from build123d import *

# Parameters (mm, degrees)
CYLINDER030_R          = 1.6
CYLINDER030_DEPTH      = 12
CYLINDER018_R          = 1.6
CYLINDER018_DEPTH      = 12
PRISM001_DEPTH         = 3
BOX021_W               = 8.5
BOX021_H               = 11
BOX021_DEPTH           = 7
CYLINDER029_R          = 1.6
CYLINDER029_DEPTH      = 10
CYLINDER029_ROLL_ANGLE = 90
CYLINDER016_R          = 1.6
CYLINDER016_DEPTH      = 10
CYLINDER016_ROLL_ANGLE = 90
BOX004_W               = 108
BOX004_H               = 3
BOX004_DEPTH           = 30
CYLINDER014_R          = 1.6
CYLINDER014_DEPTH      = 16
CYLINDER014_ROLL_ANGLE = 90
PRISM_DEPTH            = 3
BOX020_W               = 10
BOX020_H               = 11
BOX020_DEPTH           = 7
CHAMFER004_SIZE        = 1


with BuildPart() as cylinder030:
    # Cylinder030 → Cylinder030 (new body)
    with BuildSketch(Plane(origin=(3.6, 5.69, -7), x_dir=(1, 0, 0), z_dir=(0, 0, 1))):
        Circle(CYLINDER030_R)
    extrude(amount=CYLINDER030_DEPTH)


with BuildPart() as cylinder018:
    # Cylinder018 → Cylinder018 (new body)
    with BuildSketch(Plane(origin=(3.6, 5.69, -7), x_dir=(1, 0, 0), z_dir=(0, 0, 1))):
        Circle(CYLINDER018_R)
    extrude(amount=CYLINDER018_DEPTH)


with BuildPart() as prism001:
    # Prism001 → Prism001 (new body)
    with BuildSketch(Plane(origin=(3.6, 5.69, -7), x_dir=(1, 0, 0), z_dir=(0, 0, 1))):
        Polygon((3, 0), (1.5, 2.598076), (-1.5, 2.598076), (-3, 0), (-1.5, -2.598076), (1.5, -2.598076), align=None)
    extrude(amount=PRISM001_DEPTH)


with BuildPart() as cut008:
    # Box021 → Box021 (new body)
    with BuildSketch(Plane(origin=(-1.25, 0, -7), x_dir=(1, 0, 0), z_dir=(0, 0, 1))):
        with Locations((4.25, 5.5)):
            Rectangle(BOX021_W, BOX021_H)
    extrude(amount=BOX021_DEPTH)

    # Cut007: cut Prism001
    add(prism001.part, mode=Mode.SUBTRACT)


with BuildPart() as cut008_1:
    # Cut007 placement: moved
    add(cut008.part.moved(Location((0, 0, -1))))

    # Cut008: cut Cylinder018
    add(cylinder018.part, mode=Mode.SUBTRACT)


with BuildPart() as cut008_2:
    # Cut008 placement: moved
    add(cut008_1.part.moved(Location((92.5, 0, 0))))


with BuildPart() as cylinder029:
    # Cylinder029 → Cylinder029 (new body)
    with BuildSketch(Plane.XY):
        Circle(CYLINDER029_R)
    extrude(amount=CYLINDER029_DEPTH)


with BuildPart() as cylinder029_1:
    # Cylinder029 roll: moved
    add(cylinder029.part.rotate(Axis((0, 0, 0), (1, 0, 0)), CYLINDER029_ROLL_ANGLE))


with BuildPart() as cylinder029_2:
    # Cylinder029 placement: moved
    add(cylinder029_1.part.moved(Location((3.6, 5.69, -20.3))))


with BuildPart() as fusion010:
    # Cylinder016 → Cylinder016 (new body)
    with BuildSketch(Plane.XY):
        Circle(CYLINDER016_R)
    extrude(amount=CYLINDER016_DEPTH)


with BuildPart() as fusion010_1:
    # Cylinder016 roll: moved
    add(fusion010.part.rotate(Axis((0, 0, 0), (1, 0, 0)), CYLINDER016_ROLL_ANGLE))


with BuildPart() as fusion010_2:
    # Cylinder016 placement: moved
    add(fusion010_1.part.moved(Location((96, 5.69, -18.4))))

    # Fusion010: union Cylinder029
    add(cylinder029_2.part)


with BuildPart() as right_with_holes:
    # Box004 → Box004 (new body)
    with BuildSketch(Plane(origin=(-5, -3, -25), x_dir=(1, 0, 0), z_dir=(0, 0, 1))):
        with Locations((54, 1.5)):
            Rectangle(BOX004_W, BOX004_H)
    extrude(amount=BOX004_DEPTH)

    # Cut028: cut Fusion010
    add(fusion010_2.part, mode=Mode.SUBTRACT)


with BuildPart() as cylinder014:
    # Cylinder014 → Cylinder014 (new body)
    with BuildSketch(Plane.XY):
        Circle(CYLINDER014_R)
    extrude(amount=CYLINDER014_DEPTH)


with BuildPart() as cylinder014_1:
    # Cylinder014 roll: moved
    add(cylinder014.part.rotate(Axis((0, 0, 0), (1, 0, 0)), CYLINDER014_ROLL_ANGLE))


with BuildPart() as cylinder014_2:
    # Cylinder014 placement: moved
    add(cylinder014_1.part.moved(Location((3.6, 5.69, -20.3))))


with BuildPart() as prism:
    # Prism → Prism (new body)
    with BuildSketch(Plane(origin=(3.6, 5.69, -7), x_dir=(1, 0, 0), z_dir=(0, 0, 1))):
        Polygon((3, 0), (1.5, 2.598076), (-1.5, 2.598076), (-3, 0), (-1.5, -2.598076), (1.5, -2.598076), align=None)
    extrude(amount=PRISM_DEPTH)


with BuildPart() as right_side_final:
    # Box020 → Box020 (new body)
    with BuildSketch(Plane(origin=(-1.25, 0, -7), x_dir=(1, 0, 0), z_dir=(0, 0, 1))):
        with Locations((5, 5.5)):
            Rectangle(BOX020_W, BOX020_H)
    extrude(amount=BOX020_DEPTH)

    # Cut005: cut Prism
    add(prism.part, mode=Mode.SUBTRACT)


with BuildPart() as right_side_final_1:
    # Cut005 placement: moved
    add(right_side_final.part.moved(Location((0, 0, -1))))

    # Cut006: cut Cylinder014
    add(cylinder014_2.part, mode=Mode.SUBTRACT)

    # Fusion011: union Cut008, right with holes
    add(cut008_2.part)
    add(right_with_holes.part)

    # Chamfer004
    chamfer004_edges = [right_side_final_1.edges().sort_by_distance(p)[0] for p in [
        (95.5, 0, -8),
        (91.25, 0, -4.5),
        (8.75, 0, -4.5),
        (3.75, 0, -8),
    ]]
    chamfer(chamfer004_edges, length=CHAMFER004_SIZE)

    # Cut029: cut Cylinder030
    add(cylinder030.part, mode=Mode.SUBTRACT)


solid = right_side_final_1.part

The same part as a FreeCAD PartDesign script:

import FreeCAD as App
import Part
import Sketcher
from FreeCAD import Vector
Q = App.Units.Quantity


def edges_at(feature, points):
    """Names of the edges that pass closest to the given points."""
    edges = feature.Shape.Edges
    near = lambda p: min(range(len(edges)), key=lambda i: edges[i].distToShape(Part.Vertex(*p))[0])
    return sorted({f"Edge{near(p) + 1}" for p in points})

doc = App.newDocument("Part")
body = doc.addObject("PartDesign::Body", "Body")

sketch1 = body.newObject("Sketcher::SketchObject", "Sketch")
sketch1.AttachmentSupport = (doc.getObject("XY_Plane"), [""])
sketch1.MapMode = "FlatFace"
sketch1.AttachmentOffset = App.Placement(Vector(0, 0, -7), App.Rotation())
sketch1.addGeometry(Part.Circle(Vector(3.6, 5.7, 0), Vector(0, 0, 1), 1.6), False)
sketch1.addConstraint([
    Sketcher.Constraint("Diameter", 0, 3.2),
    Sketcher.Constraint("DistanceX", -1, 1, 0, 3, 3.6),
    Sketcher.Constraint("DistanceY", -1, 1, 0, 3, 5.69),
])
pad1 = body.newObject("PartDesign::Pad", "Pad")
pad1.Profile = sketch1
pad1.Length = 12
body2 = doc.addObject("PartDesign::Body", "Body001")

sketch2 = body2.newObject("Sketcher::SketchObject", "Sketch001")
sketch2.AttachmentSupport = (doc.getObject("XY_Plane001"), [""])
sketch2.MapMode = "FlatFace"
sketch2.AttachmentOffset = App.Placement(Vector(0, 0, -7), App.Rotation())
sketch2.addGeometry(Part.Circle(Vector(3.6, 5.7, 0), Vector(0, 0, 1), 1.6), False)
sketch2.addConstraint([
    Sketcher.Constraint("Diameter", 0, 3.2),
    Sketcher.Constraint("DistanceX", -1, 1, 0, 3, 3.6),
    Sketcher.Constraint("DistanceY", -1, 1, 0, 3, 5.69),
])
pad2 = body2.newObject("PartDesign::Pad", "Pad001")
pad2.Profile = sketch2
pad2.Length = 12
body3 = doc.addObject("PartDesign::Body", "Body002")

sketch3 = body3.newObject("Sketcher::SketchObject", "Sketch002")
sketch3.AttachmentSupport = (doc.getObject("XY_Plane002"), [""])
sketch3.MapMode = "FlatFace"
sketch3.AttachmentOffset = App.Placement(Vector(0, 0, -7), App.Rotation())
sketch3.addGeometry([
    Part.LineSegment(Vector(6.6, 5.7, 0), Vector(5.1, 8.3, 0)),
    Part.LineSegment(Vector(5.1, 8.3, 0), Vector(2.1, 8.3, 0)),
    Part.LineSegment(Vector(2.1, 8.3, 0), Vector(0.6, 5.7, 0)),
    Part.LineSegment(Vector(0.6, 5.7, 0), Vector(2.1, 3.1, 0)),
    Part.LineSegment(Vector(2.1, 3.1, 0), Vector(5.1, 3.1, 0)),
    Part.LineSegment(Vector(5.1, 3.1, 0), Vector(6.6, 5.7, 0)),
], False)
sketch3.addConstraint([
    Sketcher.Constraint("Coincident", 0, 2, 1, 1),
    Sketcher.Constraint("Coincident", 1, 2, 2, 1),
    Sketcher.Constraint("Coincident", 2, 2, 3, 1),
    Sketcher.Constraint("Coincident", 3, 2, 4, 1),
    Sketcher.Constraint("Coincident", 4, 2, 5, 1),
    Sketcher.Constraint("Coincident", 5, 2, 0, 1),
    Sketcher.Constraint("Horizontal", 1),
    Sketcher.Constraint("Horizontal", 4),
    Sketcher.Constraint("Parallel", 0, 3),
    Sketcher.Constraint("Parallel", 2, 5),
    Sketcher.Constraint("Horizontal", 2, 2, 5, 2),
    Sketcher.Constraint("Vertical", 1, 2, 3, 2),
    Sketcher.Constraint("Vertical", 0, 2, 4, 2),
    Sketcher.Constraint("DistanceX", 1, 2, 1, 1, 3.0),
    Sketcher.Constraint("Angle", 0, Q("120.000002 deg")),
    Sketcher.Constraint("Distance", 0, 3.0),
    Sketcher.Constraint("DistanceX", -1, 1, 0, 2, 5.1),
    Sketcher.Constraint("DistanceY", -1, 1, 2, 2, 5.69),
])
pad3 = body3.newObject("PartDesign::Pad", "Pad002")
pad3.Profile = sketch3
pad3.Length = 3
body4 = doc.addObject("PartDesign::Body", "Body003")

sketch4 = body4.newObject("Sketcher::SketchObject", "Sketch003")
sketch4.AttachmentSupport = (doc.getObject("XY_Plane003"), [""])
sketch4.MapMode = "FlatFace"
sketch4.AttachmentOffset = App.Placement(Vector(0, 0, -7), App.Rotation())
sketch4.addGeometry([
    Part.LineSegment(Vector(-1, 11, 0), Vector(-1, 0, 0)),
    Part.LineSegment(Vector(-1, 0, 0), Vector(7, 0, 0)),
    Part.LineSegment(Vector(7, 0, 0), Vector(7, 11, 0)),
    Part.LineSegment(Vector(7, 11, 0), Vector(-1, 11, 0)),
], False)
sketch4.addConstraint([
    Sketcher.Constraint("Coincident", 0, 2, 1, 1),
    Sketcher.Constraint("Coincident", 1, 2, 2, 1),
    Sketcher.Constraint("Coincident", 2, 2, 3, 1),
    Sketcher.Constraint("Coincident", 3, 2, 0, 1),
    Sketcher.Constraint("Vertical", 0),
    Sketcher.Constraint("Horizontal", 1),
    Sketcher.Constraint("Vertical", 2),
    Sketcher.Constraint("Horizontal", 3),
    Sketcher.Constraint("PointOnObject", 0, 2, -1),
    Sketcher.Constraint("DistanceY", 0, 2, 0, 1, 11.0),
    Sketcher.Constraint("DistanceX", 1, 1, 1, 2, 8.5),
    Sketcher.Constraint("DistanceX", 0, 2, -1, 1, 1.25),
])
pad4 = body4.newObject("PartDesign::Pad", "Pad003")
pad4.Profile = sketch4
pad4.Length = 7
doc.recompute()

boolean = body4.newObject("PartDesign::Boolean", "Boolean")
boolean.Type = "Cut"
boolean.addObjects([body3])
body5 = doc.addObject("PartDesign::Body", "Body004")
doc.recompute()

body4.Placement = App.Placement(Vector(0, 0, -1), App.Rotation(Vector(0, 0, 1), 0))
boolean2 = body5.newObject("PartDesign::Boolean", "Boolean001")
boolean2.Type = "Fuse"
boolean2.addObjects([body4])
doc.recompute()

boolean3 = body5.newObject("PartDesign::Boolean", "Boolean002")
boolean3.Type = "Cut"
boolean3.addObjects([body2])
body6 = doc.addObject("PartDesign::Body", "Body005")
doc.recompute()

body5.Placement = App.Placement(Vector(92.5, 0, 0), App.Rotation(Vector(0, 0, 1), 0))
boolean4 = body6.newObject("PartDesign::Boolean", "Boolean003")
boolean4.Type = "Fuse"
boolean4.addObjects([body5])
body7 = doc.addObject("PartDesign::Body", "Body006")

sketch5 = body7.newObject("Sketcher::SketchObject", "Sketch004")
sketch5.AttachmentSupport = (doc.getObject("XY_Plane006"), [""])
sketch5.MapMode = "FlatFace"
sketch5.addGeometry(Part.Circle(Vector(0, 0, 0), Vector(0, 0, 1), 1.6), False)
sketch5.addConstraint([
    Sketcher.Constraint("Coincident", 0, 3, -1, 1),
    Sketcher.Constraint("Diameter", 0, 3.2),
])
pad5 = body7.newObject("PartDesign::Pad", "Pad004")
pad5.Profile = sketch5
pad5.Length = 10
body8 = doc.addObject("PartDesign::Body", "Body007")
doc.recompute()

body7.Placement = App.Placement(Vector(0, 0, 0), App.Rotation(Vector(1, 0, 0), 90))
boolean5 = body8.newObject("PartDesign::Boolean", "Boolean004")
boolean5.Type = "Fuse"
boolean5.addObjects([body7])
body9 = doc.addObject("PartDesign::Body", "Body008")
doc.recompute()

body8.Placement = App.Placement(Vector(3.6, 5.69, -20.3), App.Rotation(Vector(0, 0, 1), 0))
boolean6 = body9.newObject("PartDesign::Boolean", "Boolean005")
boolean6.Type = "Fuse"
boolean6.addObjects([body8])
body10 = doc.addObject("PartDesign::Body", "Body009")

sketch6 = body10.newObject("Sketcher::SketchObject", "Sketch005")
sketch6.AttachmentSupport = (doc.getObject("XY_Plane009"), [""])
sketch6.MapMode = "FlatFace"
sketch6.addGeometry(Part.Circle(Vector(0, 0, 0), Vector(0, 0, 1), 1.6), False)
sketch6.addConstraint([
    Sketcher.Constraint("Coincident", 0, 3, -1, 1),
    Sketcher.Constraint("Diameter", 0, 3.2),
])
pad6 = body10.newObject("PartDesign::Pad", "Pad005")
pad6.Profile = sketch6
pad6.Length = 10
body11 = doc.addObject("PartDesign::Body", "Body010")
doc.recompute()

body10.Placement = App.Placement(Vector(0, 0, 0), App.Rotation(Vector(1, 0, 0), 90))
boolean7 = body11.newObject("PartDesign::Boolean", "Boolean006")
boolean7.Type = "Fuse"
boolean7.addObjects([body10])
body12 = doc.addObject("PartDesign::Body", "Body011")
body12.AllowCompound = True
doc.recompute()

body11.Placement = App.Placement(Vector(96, 5.69, -18.4), App.Rotation(Vector(0, 0, 1), 0))
boolean8 = body12.newObject("PartDesign::Boolean", "Boolean007")
boolean8.Type = "Fuse"
boolean8.addObjects([body11])
doc.recompute()

boolean9 = body12.newObject("PartDesign::Boolean", "Boolean008")
boolean9.Type = "Fuse"
boolean9.addObjects([body9])
body13 = doc.addObject("PartDesign::Body", "Body012")

sketch7 = body13.newObject("Sketcher::SketchObject", "Sketch006")
sketch7.AttachmentSupport = (doc.getObject("XY_Plane012"), [""])
sketch7.MapMode = "FlatFace"
sketch7.AttachmentOffset = App.Placement(Vector(0, 0, -25), App.Rotation())
sketch7.addGeometry([
    Part.LineSegment(Vector(-5, 0, 0), Vector(-5, -3, 0)),
    Part.LineSegment(Vector(-5, -3, 0), Vector(103, -3, 0)),
    Part.LineSegment(Vector(103, -3, 0), Vector(103, 0, 0)),
    Part.LineSegment(Vector(103, 0, 0), Vector(-5, 0, 0)),
], False)
sketch7.addConstraint([
    Sketcher.Constraint("Coincident", 0, 2, 1, 1),
    Sketcher.Constraint("Coincident", 1, 2, 2, 1),
    Sketcher.Constraint("Coincident", 2, 2, 3, 1),
    Sketcher.Constraint("Coincident", 3, 2, 0, 1),
    Sketcher.Constraint("Vertical", 0),
    Sketcher.Constraint("Horizontal", 1),
    Sketcher.Constraint("Vertical", 2),
    Sketcher.Constraint("Horizontal", 3),
    Sketcher.Constraint("PointOnObject", 2, 2, -1),
    Sketcher.Constraint("DistanceX", 1, 1, 1, 2, 108.0),
    Sketcher.Constraint("DistanceY", 0, 2, 0, 1, 3.0),
    Sketcher.Constraint("DistanceX", 0, 2, -1, 1, 5.0),
])
pad7 = body13.newObject("PartDesign::Pad", "Pad006")
pad7.Profile = sketch7
pad7.Length = 30
doc.recompute()

boolean10 = body13.newObject("PartDesign::Boolean", "Boolean009")
boolean10.Type = "Cut"
boolean10.addObjects([body12])
body14 = doc.addObject("PartDesign::Body", "Body013")

sketch8 = body14.newObject("Sketcher::SketchObject", "Sketch007")
sketch8.AttachmentSupport = (doc.getObject("XY_Plane013"), [""])
sketch8.MapMode = "FlatFace"
sketch8.addGeometry(Part.Circle(Vector(0, 0, 0), Vector(0, 0, 1), 1.6), False)
sketch8.addConstraint([
    Sketcher.Constraint("Coincident", 0, 3, -1, 1),
    Sketcher.Constraint("Diameter", 0, 3.2),
])
pad8 = body14.newObject("PartDesign::Pad", "Pad007")
pad8.Profile = sketch8
pad8.Length = 16
body15 = doc.addObject("PartDesign::Body", "Body014")
doc.recompute()

body14.Placement = App.Placement(Vector(0, 0, 0), App.Rotation(Vector(1, 0, 0), 90))
boolean11 = body15.newObject("PartDesign::Boolean", "Boolean010")
boolean11.Type = "Fuse"
boolean11.addObjects([body14])
body16 = doc.addObject("PartDesign::Body", "Body015")
doc.recompute()

body15.Placement = App.Placement(Vector(3.6, 5.69, -20.3), App.Rotation(Vector(0, 0, 1), 0))
boolean12 = body16.newObject("PartDesign::Boolean", "Boolean011")
boolean12.Type = "Fuse"
boolean12.addObjects([body15])
body17 = doc.addObject("PartDesign::Body", "Body016")

sketch9 = body17.newObject("Sketcher::SketchObject", "Sketch008")
sketch9.AttachmentSupport = (doc.getObject("XY_Plane016"), [""])
sketch9.MapMode = "FlatFace"
sketch9.AttachmentOffset = App.Placement(Vector(0, 0, -7), App.Rotation())
sketch9.addGeometry([
    Part.LineSegment(Vector(6.6, 5.7, 0), Vector(5.1, 8.3, 0)),
    Part.LineSegment(Vector(5.1, 8.3, 0), Vector(2.1, 8.3, 0)),
    Part.LineSegment(Vector(2.1, 8.3, 0), Vector(0.6, 5.7, 0)),
    Part.LineSegment(Vector(0.6, 5.7, 0), Vector(2.1, 3.1, 0)),
    Part.LineSegment(Vector(2.1, 3.1, 0), Vector(5.1, 3.1, 0)),
    Part.LineSegment(Vector(5.1, 3.1, 0), Vector(6.6, 5.7, 0)),
], False)
sketch9.addConstraint([
    Sketcher.Constraint("Coincident", 0, 2, 1, 1),
    Sketcher.Constraint("Coincident", 1, 2, 2, 1),
    Sketcher.Constraint("Coincident", 2, 2, 3, 1),
    Sketcher.Constraint("Coincident", 3, 2, 4, 1),
    Sketcher.Constraint("Coincident", 4, 2, 5, 1),
    Sketcher.Constraint("Coincident", 5, 2, 0, 1),
    Sketcher.Constraint("Horizontal", 1),
    Sketcher.Constraint("Horizontal", 4),
    Sketcher.Constraint("Parallel", 0, 3),
    Sketcher.Constraint("Parallel", 2, 5),
    Sketcher.Constraint("Horizontal", 2, 2, 5, 2),
    Sketcher.Constraint("Vertical", 1, 2, 3, 2),
    Sketcher.Constraint("Vertical", 0, 2, 4, 2),
    Sketcher.Constraint("DistanceX", 1, 2, 1, 1, 3.0),
    Sketcher.Constraint("Angle", 0, Q("120.000002 deg")),
    Sketcher.Constraint("Distance", 0, 3.0),
    Sketcher.Constraint("DistanceX", -1, 1, 0, 2, 5.1),
    Sketcher.Constraint("DistanceY", -1, 1, 2, 2, 5.69),
])
pad9 = body17.newObject("PartDesign::Pad", "Pad008")
pad9.Profile = sketch9
pad9.Length = 3
body18 = doc.addObject("PartDesign::Body", "Body017")

sketch10 = body18.newObject("Sketcher::SketchObject", "Sketch009")
sketch10.AttachmentSupport = (doc.getObject("XY_Plane017"), [""])
sketch10.MapMode = "FlatFace"
sketch10.AttachmentOffset = App.Placement(Vector(0, 0, -7), App.Rotation())
sketch10.addGeometry([
    Part.LineSegment(Vector(-1, 11, 0), Vector(-1, 0, 0)),
    Part.LineSegment(Vector(-1, 0, 0), Vector(9, 0, 0)),
    Part.LineSegment(Vector(9, 0, 0), Vector(9, 11, 0)),
    Part.LineSegment(Vector(9, 11, 0), Vector(-1, 11, 0)),
], False)
sketch10.addConstraint([
    Sketcher.Constraint("Coincident", 0, 2, 1, 1),
    Sketcher.Constraint("Coincident", 1, 2, 2, 1),
    Sketcher.Constraint("Coincident", 2, 2, 3, 1),
    Sketcher.Constraint("Coincident", 3, 2, 0, 1),
    Sketcher.Constraint("Vertical", 0),
    Sketcher.Constraint("Horizontal", 1),
    Sketcher.Constraint("Vertical", 2),
    Sketcher.Constraint("Horizontal", 3),
    Sketcher.Constraint("PointOnObject", 0, 2, -1),
    Sketcher.Constraint("DistanceX", 1, 1, 1, 2, 10.0),
    Sketcher.Constraint("DistanceY", 0, 2, 0, 1, 11.0),
    Sketcher.Constraint("DistanceX", 0, 2, -1, 1, 1.25),
])
pad10 = body18.newObject("PartDesign::Pad", "Pad009")
pad10.Profile = sketch10
pad10.Length = 7
doc.recompute()

boolean13 = body18.newObject("PartDesign::Boolean", "Boolean012")
boolean13.Type = "Cut"
boolean13.addObjects([body17])
body19 = doc.addObject("PartDesign::Body", "Body018")
body19.AllowCompound = True
doc.recompute()

body18.Placement = App.Placement(Vector(0, 0, -1), App.Rotation(Vector(0, 0, 1), 0))
boolean14 = body19.newObject("PartDesign::Boolean", "Boolean013")
boolean14.Type = "Fuse"
boolean14.addObjects([body18])
doc.recompute()

boolean15 = body19.newObject("PartDesign::Boolean", "Boolean014")
boolean15.Type = "Cut"
boolean15.addObjects([body16])
doc.recompute()

boolean16 = body19.newObject("PartDesign::Boolean", "Boolean015")
boolean16.Type = "Fuse"
boolean16.addObjects([body6])
doc.recompute()

boolean17 = body19.newObject("PartDesign::Boolean", "Boolean016")
boolean17.Type = "Fuse"
boolean17.addObjects([body13])
doc.recompute()

chamfer = body19.newObject("PartDesign::Chamfer", "Chamfer")
chamfer.Base = (boolean17, edges_at(boolean17, [
    (95.5, 0, -8),
    (91.25, 0, -4.5),
    (8.75, 0, -4.5),
    (3.75, 0, -8),
]))
chamfer.Size = 1
doc.recompute()

boolean18 = body19.newObject("PartDesign::Boolean", "Boolean017")
boolean18.Type = "Cut"
boolean18.addObjects([body])

doc.recompute()
